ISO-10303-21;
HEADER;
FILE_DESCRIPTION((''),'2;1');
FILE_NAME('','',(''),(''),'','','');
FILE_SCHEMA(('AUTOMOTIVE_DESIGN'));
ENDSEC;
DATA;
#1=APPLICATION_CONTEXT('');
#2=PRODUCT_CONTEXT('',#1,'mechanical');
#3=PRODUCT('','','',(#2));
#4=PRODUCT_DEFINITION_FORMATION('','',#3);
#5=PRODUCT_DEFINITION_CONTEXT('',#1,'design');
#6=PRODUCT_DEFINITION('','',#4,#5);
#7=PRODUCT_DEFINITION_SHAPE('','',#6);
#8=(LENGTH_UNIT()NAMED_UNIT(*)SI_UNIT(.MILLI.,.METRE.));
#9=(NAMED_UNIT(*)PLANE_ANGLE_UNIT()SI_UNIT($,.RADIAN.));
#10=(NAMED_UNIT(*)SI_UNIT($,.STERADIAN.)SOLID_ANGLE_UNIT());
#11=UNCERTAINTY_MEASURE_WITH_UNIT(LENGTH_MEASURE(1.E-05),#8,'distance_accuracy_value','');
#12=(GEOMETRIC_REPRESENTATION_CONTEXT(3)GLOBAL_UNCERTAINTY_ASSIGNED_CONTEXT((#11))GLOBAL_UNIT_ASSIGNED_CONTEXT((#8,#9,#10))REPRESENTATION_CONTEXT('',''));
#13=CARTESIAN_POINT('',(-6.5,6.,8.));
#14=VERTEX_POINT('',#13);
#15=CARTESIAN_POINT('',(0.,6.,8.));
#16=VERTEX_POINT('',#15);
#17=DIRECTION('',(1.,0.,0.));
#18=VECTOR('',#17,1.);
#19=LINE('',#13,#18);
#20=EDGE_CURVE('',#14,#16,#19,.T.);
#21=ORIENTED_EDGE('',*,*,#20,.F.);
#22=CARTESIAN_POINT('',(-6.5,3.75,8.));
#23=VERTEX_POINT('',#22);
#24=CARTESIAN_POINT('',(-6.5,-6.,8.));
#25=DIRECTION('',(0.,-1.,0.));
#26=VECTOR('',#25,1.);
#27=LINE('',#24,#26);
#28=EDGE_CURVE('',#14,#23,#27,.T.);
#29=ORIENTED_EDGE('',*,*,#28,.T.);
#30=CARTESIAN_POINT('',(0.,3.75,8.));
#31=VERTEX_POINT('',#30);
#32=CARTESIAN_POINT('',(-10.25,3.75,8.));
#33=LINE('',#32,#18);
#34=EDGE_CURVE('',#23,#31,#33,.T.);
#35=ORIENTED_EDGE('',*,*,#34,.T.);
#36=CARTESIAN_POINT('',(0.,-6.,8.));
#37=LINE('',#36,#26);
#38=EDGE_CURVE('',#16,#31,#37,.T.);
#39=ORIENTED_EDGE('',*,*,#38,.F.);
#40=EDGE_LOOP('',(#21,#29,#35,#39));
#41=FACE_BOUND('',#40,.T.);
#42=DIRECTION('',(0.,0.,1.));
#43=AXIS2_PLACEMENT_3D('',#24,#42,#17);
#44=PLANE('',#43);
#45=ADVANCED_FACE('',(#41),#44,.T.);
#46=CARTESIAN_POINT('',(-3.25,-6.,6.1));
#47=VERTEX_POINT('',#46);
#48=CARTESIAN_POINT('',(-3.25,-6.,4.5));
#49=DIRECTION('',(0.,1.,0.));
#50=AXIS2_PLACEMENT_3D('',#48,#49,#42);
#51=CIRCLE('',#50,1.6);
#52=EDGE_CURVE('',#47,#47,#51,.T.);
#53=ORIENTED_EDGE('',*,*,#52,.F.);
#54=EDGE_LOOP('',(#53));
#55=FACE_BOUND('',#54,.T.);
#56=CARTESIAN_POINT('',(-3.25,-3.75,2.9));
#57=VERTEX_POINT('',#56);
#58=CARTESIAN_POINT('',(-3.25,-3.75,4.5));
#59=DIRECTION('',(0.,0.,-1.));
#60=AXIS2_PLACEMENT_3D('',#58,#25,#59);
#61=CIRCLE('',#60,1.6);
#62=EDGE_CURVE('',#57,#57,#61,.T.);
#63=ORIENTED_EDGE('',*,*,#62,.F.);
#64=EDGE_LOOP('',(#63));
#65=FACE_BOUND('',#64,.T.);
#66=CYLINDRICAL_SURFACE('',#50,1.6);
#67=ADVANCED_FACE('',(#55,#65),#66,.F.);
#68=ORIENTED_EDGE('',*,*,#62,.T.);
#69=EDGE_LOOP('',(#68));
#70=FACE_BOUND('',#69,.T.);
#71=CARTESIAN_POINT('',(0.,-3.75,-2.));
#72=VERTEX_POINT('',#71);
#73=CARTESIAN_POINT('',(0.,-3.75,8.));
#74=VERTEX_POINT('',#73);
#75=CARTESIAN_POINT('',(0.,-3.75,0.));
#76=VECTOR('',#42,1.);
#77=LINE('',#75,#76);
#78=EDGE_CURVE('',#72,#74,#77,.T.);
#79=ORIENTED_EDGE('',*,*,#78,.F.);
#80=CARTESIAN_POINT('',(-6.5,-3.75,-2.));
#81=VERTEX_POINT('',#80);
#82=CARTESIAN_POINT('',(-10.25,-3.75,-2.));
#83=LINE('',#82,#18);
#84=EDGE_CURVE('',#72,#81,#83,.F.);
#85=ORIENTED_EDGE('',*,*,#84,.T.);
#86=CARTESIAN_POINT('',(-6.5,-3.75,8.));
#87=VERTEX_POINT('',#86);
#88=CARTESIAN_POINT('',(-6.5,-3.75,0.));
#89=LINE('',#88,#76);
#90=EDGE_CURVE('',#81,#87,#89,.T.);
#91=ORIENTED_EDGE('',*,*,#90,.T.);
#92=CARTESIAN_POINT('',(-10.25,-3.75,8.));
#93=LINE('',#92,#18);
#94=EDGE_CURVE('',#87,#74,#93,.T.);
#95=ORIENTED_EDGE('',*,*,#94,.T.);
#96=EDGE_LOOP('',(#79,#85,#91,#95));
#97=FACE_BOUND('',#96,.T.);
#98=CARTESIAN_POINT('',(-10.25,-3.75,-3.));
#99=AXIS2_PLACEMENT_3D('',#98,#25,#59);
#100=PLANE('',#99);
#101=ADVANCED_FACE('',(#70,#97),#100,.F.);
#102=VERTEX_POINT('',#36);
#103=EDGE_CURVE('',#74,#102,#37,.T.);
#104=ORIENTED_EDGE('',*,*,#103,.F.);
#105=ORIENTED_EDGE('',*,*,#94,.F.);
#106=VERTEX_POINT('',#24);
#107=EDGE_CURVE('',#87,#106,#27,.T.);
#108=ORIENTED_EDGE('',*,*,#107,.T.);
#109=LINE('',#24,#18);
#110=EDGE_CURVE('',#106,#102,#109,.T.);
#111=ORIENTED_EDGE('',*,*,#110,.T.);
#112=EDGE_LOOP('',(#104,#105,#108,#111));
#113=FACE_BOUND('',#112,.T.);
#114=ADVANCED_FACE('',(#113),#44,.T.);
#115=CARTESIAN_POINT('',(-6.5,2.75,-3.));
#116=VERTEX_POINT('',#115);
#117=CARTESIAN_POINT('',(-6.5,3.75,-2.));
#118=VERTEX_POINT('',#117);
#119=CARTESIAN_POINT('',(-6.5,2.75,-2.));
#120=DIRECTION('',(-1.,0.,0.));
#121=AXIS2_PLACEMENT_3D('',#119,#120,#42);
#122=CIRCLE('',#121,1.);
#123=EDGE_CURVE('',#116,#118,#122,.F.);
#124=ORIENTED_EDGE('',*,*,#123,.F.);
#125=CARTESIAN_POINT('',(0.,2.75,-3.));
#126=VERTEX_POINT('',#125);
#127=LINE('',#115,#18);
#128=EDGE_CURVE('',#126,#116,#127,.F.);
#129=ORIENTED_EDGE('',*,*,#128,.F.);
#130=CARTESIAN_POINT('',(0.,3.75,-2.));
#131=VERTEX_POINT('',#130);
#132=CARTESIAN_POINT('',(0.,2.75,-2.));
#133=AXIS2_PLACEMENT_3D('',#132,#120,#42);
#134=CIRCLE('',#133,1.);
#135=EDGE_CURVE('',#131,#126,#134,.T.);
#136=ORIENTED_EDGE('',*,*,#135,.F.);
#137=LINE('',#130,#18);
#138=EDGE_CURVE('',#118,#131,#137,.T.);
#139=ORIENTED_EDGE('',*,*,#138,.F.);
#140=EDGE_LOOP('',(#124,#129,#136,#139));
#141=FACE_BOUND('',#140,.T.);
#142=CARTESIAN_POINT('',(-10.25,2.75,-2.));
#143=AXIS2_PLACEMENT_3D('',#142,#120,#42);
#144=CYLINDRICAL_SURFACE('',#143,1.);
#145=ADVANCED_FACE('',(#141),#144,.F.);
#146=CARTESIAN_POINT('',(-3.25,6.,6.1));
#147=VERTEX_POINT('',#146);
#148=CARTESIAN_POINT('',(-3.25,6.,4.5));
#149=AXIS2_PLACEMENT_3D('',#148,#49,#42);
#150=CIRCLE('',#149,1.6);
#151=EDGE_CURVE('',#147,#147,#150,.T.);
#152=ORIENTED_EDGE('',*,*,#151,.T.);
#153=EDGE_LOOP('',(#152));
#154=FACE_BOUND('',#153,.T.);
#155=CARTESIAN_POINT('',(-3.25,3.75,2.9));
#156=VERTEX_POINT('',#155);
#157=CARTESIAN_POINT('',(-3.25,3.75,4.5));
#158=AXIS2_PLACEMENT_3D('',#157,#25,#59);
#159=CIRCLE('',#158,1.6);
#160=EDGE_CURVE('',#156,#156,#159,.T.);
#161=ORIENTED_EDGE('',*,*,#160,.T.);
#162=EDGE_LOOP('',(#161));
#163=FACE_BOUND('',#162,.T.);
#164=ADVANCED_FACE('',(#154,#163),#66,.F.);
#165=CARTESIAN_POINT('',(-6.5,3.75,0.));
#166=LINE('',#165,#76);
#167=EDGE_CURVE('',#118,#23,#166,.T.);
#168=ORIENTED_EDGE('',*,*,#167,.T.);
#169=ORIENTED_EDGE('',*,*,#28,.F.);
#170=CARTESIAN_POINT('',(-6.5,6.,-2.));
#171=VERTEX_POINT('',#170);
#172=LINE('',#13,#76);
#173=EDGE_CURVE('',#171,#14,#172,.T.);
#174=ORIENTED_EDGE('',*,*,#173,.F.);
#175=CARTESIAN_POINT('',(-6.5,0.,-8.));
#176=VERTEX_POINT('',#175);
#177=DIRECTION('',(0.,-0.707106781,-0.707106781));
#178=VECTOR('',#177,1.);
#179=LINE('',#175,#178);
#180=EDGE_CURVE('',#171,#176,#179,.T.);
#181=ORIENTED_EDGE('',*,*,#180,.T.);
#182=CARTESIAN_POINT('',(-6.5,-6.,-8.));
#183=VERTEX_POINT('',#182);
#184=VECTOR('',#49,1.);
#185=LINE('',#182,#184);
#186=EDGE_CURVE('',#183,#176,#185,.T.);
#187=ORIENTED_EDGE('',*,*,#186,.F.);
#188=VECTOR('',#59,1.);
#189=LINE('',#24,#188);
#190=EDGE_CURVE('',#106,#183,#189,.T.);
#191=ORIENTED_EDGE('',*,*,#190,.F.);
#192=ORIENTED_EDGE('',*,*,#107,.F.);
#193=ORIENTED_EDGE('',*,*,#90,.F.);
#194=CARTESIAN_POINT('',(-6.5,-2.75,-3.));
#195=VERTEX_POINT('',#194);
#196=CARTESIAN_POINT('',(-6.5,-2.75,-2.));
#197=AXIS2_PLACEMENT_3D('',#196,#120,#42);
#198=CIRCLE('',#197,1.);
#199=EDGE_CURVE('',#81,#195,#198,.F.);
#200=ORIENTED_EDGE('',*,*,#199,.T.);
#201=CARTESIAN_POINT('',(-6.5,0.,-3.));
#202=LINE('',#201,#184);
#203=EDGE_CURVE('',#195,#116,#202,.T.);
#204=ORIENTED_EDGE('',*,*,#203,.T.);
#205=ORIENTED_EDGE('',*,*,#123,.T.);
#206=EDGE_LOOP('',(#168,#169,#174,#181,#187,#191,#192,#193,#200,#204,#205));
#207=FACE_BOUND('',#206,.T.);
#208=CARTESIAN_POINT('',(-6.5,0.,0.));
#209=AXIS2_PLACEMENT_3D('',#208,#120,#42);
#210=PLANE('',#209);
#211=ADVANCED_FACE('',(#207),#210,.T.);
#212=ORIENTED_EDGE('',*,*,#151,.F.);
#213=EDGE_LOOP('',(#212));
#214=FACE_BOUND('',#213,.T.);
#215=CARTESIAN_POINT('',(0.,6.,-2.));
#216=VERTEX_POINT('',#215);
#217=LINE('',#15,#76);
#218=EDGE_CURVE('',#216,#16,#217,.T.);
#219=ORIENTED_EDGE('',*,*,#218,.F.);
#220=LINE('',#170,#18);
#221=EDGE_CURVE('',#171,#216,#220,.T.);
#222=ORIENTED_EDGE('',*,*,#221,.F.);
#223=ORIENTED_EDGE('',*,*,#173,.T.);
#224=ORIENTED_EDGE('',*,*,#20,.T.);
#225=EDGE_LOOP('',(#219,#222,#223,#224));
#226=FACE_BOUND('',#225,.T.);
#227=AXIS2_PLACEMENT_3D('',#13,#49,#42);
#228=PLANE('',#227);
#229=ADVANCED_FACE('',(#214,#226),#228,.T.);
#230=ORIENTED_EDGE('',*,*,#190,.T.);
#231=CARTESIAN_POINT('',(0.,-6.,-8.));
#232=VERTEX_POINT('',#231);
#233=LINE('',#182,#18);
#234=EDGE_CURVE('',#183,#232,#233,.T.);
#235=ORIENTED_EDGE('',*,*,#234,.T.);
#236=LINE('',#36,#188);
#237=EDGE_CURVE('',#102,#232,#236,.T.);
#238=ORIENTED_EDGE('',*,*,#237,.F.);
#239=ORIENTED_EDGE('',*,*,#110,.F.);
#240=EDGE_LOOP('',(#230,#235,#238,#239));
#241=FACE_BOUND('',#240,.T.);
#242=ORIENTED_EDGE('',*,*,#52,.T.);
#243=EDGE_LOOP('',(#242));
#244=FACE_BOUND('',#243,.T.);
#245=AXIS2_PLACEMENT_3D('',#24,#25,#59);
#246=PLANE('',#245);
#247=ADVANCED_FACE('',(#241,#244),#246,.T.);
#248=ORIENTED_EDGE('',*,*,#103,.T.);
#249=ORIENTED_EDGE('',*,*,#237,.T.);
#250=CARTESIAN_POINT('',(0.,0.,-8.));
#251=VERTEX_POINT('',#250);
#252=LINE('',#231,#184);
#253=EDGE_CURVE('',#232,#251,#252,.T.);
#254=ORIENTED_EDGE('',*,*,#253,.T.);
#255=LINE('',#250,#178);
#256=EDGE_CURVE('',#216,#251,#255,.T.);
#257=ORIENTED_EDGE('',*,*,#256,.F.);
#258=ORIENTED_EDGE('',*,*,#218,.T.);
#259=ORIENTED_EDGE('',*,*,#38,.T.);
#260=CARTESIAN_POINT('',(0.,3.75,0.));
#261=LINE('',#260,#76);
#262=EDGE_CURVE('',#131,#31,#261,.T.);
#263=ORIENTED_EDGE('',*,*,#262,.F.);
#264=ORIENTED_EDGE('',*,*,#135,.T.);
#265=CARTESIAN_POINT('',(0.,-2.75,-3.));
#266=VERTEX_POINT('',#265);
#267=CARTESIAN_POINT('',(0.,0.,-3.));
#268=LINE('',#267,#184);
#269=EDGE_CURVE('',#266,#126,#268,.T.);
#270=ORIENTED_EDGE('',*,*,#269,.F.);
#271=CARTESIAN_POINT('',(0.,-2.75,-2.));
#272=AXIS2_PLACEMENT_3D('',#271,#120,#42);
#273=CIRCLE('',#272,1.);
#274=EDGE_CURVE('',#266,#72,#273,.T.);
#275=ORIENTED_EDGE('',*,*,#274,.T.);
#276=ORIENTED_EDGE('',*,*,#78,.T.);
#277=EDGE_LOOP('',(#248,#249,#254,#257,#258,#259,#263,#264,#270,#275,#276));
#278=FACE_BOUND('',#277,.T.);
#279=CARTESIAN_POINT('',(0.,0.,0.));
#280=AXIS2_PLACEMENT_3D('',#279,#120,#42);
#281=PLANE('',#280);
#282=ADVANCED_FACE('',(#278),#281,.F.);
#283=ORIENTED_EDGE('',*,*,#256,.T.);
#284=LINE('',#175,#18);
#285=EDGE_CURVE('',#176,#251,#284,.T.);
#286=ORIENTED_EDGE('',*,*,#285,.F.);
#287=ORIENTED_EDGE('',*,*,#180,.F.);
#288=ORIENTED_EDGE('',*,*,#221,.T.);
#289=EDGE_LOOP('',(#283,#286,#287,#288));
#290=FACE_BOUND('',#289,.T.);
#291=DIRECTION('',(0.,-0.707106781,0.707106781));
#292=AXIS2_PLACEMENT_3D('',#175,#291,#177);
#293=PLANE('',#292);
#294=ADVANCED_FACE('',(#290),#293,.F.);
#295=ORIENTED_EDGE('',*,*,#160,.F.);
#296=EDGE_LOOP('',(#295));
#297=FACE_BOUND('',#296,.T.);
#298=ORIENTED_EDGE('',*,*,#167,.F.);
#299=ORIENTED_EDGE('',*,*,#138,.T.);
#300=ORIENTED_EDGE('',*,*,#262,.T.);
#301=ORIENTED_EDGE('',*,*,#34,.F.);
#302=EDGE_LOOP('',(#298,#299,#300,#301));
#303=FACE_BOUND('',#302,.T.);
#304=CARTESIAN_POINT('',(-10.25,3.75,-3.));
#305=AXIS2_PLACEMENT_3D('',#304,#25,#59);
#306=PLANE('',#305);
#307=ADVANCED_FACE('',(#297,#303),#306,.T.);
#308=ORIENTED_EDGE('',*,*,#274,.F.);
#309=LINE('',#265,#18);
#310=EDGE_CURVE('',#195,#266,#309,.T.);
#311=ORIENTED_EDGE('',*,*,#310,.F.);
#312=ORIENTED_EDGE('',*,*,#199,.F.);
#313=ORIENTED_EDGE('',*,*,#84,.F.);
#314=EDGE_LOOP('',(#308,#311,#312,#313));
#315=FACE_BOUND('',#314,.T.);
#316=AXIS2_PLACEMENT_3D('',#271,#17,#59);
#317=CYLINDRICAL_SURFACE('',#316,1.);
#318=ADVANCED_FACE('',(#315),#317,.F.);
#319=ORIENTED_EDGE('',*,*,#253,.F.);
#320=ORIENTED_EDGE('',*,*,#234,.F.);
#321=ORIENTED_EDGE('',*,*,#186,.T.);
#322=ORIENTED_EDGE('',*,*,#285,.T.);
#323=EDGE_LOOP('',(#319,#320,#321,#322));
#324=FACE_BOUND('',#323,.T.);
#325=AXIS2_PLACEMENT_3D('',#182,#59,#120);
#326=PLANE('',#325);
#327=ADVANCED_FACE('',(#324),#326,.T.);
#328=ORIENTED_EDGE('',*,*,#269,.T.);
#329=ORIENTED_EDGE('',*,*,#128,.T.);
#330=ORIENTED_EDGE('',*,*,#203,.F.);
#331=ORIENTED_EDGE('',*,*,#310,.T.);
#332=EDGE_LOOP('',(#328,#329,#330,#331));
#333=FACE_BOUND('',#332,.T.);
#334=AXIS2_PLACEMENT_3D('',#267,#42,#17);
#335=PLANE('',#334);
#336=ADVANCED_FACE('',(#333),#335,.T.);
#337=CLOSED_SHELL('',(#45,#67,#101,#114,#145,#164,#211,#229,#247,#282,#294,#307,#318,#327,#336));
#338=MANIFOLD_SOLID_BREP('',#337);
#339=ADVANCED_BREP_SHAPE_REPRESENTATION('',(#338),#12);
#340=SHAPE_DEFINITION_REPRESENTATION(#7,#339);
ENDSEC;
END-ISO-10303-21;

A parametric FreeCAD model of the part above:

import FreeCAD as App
import Part
import Sketcher

V = App.Vector
Q = App.Units.Quantity


def edges_at(feature, points):
    """Names of the edges that pass closest to the given points."""
    edges = feature.Shape.Edges
    near = lambda p: min(range(len(edges)), key=lambda i: edges[i].distToShape(Part.Vertex(*p))[0])
    return sorted({f"Edge{near(p) + 1}" for p in points})

doc = App.newDocument("Part")
params = doc.addObject("Spreadsheet::Sheet", "Params")
for row, (alias, value) in enumerate([
    ("sketch1_width", "12 mm"),
    ("sketch1_height", "16 mm"),
    ("pad1_length", "6.5 mm"),
    ("sketch2_width", "6 mm"),
    ("sketch3_width", "14 mm"),
    ("sketch3_height", "7.5 mm"),
    ("pocket2_length", "11 mm"),
    ("sketch4_diameter", "3.2 mm"),
    ("fillet_radius", "1 mm"),
], start=1):
    params.set(f"A{row}", alias)
    params.set(f"B{row}", "=" + value)
    params.setAlias(f"B{row}", alias)

body = doc.addObject("PartDesign::Body", "Body")

# Sketch on YZ plane
sketch1 = doc.addObject("Sketcher::SketchObject", "Sketch")
body.addObject(sketch1)
sketch1.AttachmentSupport = (doc.YZ_Plane, [""])
sketch1.MapMode = "FlatFace"
sketch1.addGeometry(Part.LineSegment(V(6, 8, 0), V(-6, 8, 0)), False)
sketch1.addGeometry(Part.LineSegment(V(-6, 8, 0), V(-6, -8, 0)), False)
sketch1.addGeometry(Part.LineSegment(V(-6, -8, 0), V(6, -8, 0)), False)
sketch1.addGeometry(Part.LineSegment(V(6, -8, 0), V(6, 8, 0)), False)
sketch1.addConstraint(Sketcher.Constraint("Coincident", 0, 2, 1, 1))
sketch1.addConstraint(Sketcher.Constraint("Coincident", 1, 2, 2, 1))
sketch1.addConstraint(Sketcher.Constraint("Coincident", 2, 2, 3, 1))
sketch1.addConstraint(Sketcher.Constraint("Coincident", 3, 2, 0, 1))
sketch1.addConstraint(Sketcher.Constraint("Horizontal", 0))
sketch1.addConstraint(Sketcher.Constraint("Vertical", 1))
sketch1.addConstraint(Sketcher.Constraint("Horizontal", 2))
sketch1.addConstraint(Sketcher.Constraint("Vertical", 3))
sketch1.addConstraint(Sketcher.Constraint("Symmetric", 0, 2, 2, 2, -1, 1))
sketch1.addConstraint(Sketcher.Constraint("DistanceX", 0, 2, 0, 1, Q("12 mm")))
sketch1.addConstraint(Sketcher.Constraint("DistanceY", 1, 2, 1, 1, Q("16 mm")))
sketch1.setExpression("Constraints[9]", "Params.sketch1_width")
sketch1.setExpression("Constraints[10]", "Params.sketch1_height")
pad1 = doc.addObject("PartDesign::Pad", "Pad")
body.addObject(pad1)
pad1.Profile = sketch1
pad1.setExpression("Length", "Params.pad1_length")
pad1.Reversed = True

# Sketch on YZ plane
sketch2 = doc.addObject("Sketcher::SketchObject", "Sketch001")
body.addObject(sketch2)
sketch2.AttachmentSupport = (doc.YZ_Plane, [""])
sketch2.MapMode = "FlatFace"
sketch2.addGeometry(Part.LineSegment(V(6, -2, 0), V(0, -8, 0)), False)
sketch2.addGeometry(Part.LineSegment(V(0, -8, 0), V(6, -8, 0)), False)
sketch2.addGeometry(Part.LineSegment(V(6, -8, 0), V(6, -2, 0)), False)
sketch2.addConstraint(Sketcher.Constraint("Coincident", 0, 2, 1, 1))
sketch2.addConstraint(Sketcher.Constraint("Coincident", 1, 2, 2, 1))
sketch2.addConstraint(Sketcher.Constraint("Coincident", 2, 2, 0, 1))
sketch2.addConstraint(Sketcher.Constraint("Horizontal", 1))
sketch2.addConstraint(Sketcher.Constraint("Vertical", 2))
sketch2.addConstraint(Sketcher.Constraint("PointOnObject", 0, 2, -2))
sketch2.addConstraint(Sketcher.Constraint("Equal", 1, 2))
sketch2.addConstraint(Sketcher.Constraint("DistanceX", 1, 1, 1, 2, Q("6 mm")))
sketch2.addConstraint(Sketcher.Constraint("DistanceY", 0, 2, -1, 1, Q("8 mm")))
sketch2.setExpression("Constraints[7]", "Params.sketch2_width")
pocket1 = doc.addObject("PartDesign::Pocket", "Pocket")
body.addObject(pocket1)
pocket1.Profile = sketch2
pocket1.Type = "ThroughAll"

# Sketch on XY plane
sketch3 = doc.addObject("Sketcher::SketchObject", "Sketch002")
body.addObject(sketch3)
sketch3.AttachmentSupport = (doc.XY_Plane, [""])
sketch3.MapMode = "FlatFace"
sketch3.AttachmentOffset = App.Placement(V(0, 0, 8), App.Rotation())
sketch3.addGeometry(Part.LineSegment(V(-10, 4, 0), V(-10, -4, 0)), False)
sketch3.addGeometry(Part.LineSegment(V(-10, -4, 0), V(4, -4, 0)), False)
sketch3.addGeometry(Part.LineSegment(V(4, -4, 0), V(4, 4, 0)), False)
sketch3.addGeometry(Part.LineSegment(V(4, 4, 0), V(-10, 4, 0)), False)
sketch3.addConstraint(Sketcher.Constraint("Coincident", 0, 2, 1, 1))
sketch3.addConstraint(Sketcher.Constraint("Coincident", 1, 2, 2, 1))
sketch3.addConstraint(Sketcher.Constraint("Coincident", 2, 2, 3, 1))
sketch3.addConstraint(Sketcher.Constraint("Coincident", 3, 2, 0, 1))
sketch3.addConstraint(Sketcher.Constraint("Vertical", 0))
sketch3.addConstraint(Sketcher.Constraint("Horizontal", 1))
sketch3.addConstraint(Sketcher.Constraint("Vertical", 2))
sketch3.addConstraint(Sketcher.Constraint("Horizontal", 3))
sketch3.addConstraint(Sketcher.Constraint("DistanceX", 1, 1, 1, 2, Q("14 mm")))
sketch3.addConstraint(Sketcher.Constraint("DistanceY", 0, 2, 0, 1, Q("7.5 mm")))
sketch3.addConstraint(Sketcher.Constraint("DistanceX", 0, 2, -1, 1, Q("10.25 mm")))
sketch3.addConstraint(Sketcher.Constraint("DistanceY", 0, 2, -1, 1, Q("3.75 mm")))
sketch3.setExpression("Constraints[8]", "Params.sketch3_width")
sketch3.setExpression("Constraints[9]", "Params.sketch3_height")
pocket2 = doc.addObject("PartDesign::Pocket", "Pocket001")
body.addObject(pocket2)
pocket2.Profile = sketch3
pocket2.setExpression("Length", "Params.pocket2_length")

# Sketch on XZ plane
sketch4 = doc.addObject("Sketcher::SketchObject", "Sketch003")
body.addObject(sketch4)
sketch4.AttachmentSupport = (doc.XZ_Plane, [""])
sketch4.MapMode = "FlatFace"
sketch4.AttachmentOffset = App.Placement(V(0, 0, -6), App.Rotation())
sketch4.addGeometry(Part.Circle(V(-3.2, 4.5, 0), V(0, 0, 1), 1.6), False)
sketch4.addConstraint(Sketcher.Constraint("Diameter", 0, Q("3.2 mm")))
sketch4.addConstraint(Sketcher.Constraint("DistanceY", -1, 1, 0, 3, Q("4.5 mm")))
sketch4.addConstraint(Sketcher.Constraint("DistanceX", 0, 3, -1, 1, Q("3.25 mm")))
sketch4.setExpression("Constraints[0]", "Params.sketch4_diameter")
pocket3 = doc.addObject("PartDesign::Pocket", "Pocket002")
body.addObject(pocket3)
pocket3.Profile = sketch4
pocket3.Type = "ThroughAll"
pocket3.Reversed = True
doc.recompute()

fillet = doc.addObject("PartDesign::Fillet", "Fillet")
body.addObject(fillet)
fillet.Base = (pocket3, edges_at(pocket3, [(-3.25, -3.75, -3), (-3.25, 3.75, -3)]))
fillet.setExpression("Radius", "Params.fillet_radius")

doc.recompute()
